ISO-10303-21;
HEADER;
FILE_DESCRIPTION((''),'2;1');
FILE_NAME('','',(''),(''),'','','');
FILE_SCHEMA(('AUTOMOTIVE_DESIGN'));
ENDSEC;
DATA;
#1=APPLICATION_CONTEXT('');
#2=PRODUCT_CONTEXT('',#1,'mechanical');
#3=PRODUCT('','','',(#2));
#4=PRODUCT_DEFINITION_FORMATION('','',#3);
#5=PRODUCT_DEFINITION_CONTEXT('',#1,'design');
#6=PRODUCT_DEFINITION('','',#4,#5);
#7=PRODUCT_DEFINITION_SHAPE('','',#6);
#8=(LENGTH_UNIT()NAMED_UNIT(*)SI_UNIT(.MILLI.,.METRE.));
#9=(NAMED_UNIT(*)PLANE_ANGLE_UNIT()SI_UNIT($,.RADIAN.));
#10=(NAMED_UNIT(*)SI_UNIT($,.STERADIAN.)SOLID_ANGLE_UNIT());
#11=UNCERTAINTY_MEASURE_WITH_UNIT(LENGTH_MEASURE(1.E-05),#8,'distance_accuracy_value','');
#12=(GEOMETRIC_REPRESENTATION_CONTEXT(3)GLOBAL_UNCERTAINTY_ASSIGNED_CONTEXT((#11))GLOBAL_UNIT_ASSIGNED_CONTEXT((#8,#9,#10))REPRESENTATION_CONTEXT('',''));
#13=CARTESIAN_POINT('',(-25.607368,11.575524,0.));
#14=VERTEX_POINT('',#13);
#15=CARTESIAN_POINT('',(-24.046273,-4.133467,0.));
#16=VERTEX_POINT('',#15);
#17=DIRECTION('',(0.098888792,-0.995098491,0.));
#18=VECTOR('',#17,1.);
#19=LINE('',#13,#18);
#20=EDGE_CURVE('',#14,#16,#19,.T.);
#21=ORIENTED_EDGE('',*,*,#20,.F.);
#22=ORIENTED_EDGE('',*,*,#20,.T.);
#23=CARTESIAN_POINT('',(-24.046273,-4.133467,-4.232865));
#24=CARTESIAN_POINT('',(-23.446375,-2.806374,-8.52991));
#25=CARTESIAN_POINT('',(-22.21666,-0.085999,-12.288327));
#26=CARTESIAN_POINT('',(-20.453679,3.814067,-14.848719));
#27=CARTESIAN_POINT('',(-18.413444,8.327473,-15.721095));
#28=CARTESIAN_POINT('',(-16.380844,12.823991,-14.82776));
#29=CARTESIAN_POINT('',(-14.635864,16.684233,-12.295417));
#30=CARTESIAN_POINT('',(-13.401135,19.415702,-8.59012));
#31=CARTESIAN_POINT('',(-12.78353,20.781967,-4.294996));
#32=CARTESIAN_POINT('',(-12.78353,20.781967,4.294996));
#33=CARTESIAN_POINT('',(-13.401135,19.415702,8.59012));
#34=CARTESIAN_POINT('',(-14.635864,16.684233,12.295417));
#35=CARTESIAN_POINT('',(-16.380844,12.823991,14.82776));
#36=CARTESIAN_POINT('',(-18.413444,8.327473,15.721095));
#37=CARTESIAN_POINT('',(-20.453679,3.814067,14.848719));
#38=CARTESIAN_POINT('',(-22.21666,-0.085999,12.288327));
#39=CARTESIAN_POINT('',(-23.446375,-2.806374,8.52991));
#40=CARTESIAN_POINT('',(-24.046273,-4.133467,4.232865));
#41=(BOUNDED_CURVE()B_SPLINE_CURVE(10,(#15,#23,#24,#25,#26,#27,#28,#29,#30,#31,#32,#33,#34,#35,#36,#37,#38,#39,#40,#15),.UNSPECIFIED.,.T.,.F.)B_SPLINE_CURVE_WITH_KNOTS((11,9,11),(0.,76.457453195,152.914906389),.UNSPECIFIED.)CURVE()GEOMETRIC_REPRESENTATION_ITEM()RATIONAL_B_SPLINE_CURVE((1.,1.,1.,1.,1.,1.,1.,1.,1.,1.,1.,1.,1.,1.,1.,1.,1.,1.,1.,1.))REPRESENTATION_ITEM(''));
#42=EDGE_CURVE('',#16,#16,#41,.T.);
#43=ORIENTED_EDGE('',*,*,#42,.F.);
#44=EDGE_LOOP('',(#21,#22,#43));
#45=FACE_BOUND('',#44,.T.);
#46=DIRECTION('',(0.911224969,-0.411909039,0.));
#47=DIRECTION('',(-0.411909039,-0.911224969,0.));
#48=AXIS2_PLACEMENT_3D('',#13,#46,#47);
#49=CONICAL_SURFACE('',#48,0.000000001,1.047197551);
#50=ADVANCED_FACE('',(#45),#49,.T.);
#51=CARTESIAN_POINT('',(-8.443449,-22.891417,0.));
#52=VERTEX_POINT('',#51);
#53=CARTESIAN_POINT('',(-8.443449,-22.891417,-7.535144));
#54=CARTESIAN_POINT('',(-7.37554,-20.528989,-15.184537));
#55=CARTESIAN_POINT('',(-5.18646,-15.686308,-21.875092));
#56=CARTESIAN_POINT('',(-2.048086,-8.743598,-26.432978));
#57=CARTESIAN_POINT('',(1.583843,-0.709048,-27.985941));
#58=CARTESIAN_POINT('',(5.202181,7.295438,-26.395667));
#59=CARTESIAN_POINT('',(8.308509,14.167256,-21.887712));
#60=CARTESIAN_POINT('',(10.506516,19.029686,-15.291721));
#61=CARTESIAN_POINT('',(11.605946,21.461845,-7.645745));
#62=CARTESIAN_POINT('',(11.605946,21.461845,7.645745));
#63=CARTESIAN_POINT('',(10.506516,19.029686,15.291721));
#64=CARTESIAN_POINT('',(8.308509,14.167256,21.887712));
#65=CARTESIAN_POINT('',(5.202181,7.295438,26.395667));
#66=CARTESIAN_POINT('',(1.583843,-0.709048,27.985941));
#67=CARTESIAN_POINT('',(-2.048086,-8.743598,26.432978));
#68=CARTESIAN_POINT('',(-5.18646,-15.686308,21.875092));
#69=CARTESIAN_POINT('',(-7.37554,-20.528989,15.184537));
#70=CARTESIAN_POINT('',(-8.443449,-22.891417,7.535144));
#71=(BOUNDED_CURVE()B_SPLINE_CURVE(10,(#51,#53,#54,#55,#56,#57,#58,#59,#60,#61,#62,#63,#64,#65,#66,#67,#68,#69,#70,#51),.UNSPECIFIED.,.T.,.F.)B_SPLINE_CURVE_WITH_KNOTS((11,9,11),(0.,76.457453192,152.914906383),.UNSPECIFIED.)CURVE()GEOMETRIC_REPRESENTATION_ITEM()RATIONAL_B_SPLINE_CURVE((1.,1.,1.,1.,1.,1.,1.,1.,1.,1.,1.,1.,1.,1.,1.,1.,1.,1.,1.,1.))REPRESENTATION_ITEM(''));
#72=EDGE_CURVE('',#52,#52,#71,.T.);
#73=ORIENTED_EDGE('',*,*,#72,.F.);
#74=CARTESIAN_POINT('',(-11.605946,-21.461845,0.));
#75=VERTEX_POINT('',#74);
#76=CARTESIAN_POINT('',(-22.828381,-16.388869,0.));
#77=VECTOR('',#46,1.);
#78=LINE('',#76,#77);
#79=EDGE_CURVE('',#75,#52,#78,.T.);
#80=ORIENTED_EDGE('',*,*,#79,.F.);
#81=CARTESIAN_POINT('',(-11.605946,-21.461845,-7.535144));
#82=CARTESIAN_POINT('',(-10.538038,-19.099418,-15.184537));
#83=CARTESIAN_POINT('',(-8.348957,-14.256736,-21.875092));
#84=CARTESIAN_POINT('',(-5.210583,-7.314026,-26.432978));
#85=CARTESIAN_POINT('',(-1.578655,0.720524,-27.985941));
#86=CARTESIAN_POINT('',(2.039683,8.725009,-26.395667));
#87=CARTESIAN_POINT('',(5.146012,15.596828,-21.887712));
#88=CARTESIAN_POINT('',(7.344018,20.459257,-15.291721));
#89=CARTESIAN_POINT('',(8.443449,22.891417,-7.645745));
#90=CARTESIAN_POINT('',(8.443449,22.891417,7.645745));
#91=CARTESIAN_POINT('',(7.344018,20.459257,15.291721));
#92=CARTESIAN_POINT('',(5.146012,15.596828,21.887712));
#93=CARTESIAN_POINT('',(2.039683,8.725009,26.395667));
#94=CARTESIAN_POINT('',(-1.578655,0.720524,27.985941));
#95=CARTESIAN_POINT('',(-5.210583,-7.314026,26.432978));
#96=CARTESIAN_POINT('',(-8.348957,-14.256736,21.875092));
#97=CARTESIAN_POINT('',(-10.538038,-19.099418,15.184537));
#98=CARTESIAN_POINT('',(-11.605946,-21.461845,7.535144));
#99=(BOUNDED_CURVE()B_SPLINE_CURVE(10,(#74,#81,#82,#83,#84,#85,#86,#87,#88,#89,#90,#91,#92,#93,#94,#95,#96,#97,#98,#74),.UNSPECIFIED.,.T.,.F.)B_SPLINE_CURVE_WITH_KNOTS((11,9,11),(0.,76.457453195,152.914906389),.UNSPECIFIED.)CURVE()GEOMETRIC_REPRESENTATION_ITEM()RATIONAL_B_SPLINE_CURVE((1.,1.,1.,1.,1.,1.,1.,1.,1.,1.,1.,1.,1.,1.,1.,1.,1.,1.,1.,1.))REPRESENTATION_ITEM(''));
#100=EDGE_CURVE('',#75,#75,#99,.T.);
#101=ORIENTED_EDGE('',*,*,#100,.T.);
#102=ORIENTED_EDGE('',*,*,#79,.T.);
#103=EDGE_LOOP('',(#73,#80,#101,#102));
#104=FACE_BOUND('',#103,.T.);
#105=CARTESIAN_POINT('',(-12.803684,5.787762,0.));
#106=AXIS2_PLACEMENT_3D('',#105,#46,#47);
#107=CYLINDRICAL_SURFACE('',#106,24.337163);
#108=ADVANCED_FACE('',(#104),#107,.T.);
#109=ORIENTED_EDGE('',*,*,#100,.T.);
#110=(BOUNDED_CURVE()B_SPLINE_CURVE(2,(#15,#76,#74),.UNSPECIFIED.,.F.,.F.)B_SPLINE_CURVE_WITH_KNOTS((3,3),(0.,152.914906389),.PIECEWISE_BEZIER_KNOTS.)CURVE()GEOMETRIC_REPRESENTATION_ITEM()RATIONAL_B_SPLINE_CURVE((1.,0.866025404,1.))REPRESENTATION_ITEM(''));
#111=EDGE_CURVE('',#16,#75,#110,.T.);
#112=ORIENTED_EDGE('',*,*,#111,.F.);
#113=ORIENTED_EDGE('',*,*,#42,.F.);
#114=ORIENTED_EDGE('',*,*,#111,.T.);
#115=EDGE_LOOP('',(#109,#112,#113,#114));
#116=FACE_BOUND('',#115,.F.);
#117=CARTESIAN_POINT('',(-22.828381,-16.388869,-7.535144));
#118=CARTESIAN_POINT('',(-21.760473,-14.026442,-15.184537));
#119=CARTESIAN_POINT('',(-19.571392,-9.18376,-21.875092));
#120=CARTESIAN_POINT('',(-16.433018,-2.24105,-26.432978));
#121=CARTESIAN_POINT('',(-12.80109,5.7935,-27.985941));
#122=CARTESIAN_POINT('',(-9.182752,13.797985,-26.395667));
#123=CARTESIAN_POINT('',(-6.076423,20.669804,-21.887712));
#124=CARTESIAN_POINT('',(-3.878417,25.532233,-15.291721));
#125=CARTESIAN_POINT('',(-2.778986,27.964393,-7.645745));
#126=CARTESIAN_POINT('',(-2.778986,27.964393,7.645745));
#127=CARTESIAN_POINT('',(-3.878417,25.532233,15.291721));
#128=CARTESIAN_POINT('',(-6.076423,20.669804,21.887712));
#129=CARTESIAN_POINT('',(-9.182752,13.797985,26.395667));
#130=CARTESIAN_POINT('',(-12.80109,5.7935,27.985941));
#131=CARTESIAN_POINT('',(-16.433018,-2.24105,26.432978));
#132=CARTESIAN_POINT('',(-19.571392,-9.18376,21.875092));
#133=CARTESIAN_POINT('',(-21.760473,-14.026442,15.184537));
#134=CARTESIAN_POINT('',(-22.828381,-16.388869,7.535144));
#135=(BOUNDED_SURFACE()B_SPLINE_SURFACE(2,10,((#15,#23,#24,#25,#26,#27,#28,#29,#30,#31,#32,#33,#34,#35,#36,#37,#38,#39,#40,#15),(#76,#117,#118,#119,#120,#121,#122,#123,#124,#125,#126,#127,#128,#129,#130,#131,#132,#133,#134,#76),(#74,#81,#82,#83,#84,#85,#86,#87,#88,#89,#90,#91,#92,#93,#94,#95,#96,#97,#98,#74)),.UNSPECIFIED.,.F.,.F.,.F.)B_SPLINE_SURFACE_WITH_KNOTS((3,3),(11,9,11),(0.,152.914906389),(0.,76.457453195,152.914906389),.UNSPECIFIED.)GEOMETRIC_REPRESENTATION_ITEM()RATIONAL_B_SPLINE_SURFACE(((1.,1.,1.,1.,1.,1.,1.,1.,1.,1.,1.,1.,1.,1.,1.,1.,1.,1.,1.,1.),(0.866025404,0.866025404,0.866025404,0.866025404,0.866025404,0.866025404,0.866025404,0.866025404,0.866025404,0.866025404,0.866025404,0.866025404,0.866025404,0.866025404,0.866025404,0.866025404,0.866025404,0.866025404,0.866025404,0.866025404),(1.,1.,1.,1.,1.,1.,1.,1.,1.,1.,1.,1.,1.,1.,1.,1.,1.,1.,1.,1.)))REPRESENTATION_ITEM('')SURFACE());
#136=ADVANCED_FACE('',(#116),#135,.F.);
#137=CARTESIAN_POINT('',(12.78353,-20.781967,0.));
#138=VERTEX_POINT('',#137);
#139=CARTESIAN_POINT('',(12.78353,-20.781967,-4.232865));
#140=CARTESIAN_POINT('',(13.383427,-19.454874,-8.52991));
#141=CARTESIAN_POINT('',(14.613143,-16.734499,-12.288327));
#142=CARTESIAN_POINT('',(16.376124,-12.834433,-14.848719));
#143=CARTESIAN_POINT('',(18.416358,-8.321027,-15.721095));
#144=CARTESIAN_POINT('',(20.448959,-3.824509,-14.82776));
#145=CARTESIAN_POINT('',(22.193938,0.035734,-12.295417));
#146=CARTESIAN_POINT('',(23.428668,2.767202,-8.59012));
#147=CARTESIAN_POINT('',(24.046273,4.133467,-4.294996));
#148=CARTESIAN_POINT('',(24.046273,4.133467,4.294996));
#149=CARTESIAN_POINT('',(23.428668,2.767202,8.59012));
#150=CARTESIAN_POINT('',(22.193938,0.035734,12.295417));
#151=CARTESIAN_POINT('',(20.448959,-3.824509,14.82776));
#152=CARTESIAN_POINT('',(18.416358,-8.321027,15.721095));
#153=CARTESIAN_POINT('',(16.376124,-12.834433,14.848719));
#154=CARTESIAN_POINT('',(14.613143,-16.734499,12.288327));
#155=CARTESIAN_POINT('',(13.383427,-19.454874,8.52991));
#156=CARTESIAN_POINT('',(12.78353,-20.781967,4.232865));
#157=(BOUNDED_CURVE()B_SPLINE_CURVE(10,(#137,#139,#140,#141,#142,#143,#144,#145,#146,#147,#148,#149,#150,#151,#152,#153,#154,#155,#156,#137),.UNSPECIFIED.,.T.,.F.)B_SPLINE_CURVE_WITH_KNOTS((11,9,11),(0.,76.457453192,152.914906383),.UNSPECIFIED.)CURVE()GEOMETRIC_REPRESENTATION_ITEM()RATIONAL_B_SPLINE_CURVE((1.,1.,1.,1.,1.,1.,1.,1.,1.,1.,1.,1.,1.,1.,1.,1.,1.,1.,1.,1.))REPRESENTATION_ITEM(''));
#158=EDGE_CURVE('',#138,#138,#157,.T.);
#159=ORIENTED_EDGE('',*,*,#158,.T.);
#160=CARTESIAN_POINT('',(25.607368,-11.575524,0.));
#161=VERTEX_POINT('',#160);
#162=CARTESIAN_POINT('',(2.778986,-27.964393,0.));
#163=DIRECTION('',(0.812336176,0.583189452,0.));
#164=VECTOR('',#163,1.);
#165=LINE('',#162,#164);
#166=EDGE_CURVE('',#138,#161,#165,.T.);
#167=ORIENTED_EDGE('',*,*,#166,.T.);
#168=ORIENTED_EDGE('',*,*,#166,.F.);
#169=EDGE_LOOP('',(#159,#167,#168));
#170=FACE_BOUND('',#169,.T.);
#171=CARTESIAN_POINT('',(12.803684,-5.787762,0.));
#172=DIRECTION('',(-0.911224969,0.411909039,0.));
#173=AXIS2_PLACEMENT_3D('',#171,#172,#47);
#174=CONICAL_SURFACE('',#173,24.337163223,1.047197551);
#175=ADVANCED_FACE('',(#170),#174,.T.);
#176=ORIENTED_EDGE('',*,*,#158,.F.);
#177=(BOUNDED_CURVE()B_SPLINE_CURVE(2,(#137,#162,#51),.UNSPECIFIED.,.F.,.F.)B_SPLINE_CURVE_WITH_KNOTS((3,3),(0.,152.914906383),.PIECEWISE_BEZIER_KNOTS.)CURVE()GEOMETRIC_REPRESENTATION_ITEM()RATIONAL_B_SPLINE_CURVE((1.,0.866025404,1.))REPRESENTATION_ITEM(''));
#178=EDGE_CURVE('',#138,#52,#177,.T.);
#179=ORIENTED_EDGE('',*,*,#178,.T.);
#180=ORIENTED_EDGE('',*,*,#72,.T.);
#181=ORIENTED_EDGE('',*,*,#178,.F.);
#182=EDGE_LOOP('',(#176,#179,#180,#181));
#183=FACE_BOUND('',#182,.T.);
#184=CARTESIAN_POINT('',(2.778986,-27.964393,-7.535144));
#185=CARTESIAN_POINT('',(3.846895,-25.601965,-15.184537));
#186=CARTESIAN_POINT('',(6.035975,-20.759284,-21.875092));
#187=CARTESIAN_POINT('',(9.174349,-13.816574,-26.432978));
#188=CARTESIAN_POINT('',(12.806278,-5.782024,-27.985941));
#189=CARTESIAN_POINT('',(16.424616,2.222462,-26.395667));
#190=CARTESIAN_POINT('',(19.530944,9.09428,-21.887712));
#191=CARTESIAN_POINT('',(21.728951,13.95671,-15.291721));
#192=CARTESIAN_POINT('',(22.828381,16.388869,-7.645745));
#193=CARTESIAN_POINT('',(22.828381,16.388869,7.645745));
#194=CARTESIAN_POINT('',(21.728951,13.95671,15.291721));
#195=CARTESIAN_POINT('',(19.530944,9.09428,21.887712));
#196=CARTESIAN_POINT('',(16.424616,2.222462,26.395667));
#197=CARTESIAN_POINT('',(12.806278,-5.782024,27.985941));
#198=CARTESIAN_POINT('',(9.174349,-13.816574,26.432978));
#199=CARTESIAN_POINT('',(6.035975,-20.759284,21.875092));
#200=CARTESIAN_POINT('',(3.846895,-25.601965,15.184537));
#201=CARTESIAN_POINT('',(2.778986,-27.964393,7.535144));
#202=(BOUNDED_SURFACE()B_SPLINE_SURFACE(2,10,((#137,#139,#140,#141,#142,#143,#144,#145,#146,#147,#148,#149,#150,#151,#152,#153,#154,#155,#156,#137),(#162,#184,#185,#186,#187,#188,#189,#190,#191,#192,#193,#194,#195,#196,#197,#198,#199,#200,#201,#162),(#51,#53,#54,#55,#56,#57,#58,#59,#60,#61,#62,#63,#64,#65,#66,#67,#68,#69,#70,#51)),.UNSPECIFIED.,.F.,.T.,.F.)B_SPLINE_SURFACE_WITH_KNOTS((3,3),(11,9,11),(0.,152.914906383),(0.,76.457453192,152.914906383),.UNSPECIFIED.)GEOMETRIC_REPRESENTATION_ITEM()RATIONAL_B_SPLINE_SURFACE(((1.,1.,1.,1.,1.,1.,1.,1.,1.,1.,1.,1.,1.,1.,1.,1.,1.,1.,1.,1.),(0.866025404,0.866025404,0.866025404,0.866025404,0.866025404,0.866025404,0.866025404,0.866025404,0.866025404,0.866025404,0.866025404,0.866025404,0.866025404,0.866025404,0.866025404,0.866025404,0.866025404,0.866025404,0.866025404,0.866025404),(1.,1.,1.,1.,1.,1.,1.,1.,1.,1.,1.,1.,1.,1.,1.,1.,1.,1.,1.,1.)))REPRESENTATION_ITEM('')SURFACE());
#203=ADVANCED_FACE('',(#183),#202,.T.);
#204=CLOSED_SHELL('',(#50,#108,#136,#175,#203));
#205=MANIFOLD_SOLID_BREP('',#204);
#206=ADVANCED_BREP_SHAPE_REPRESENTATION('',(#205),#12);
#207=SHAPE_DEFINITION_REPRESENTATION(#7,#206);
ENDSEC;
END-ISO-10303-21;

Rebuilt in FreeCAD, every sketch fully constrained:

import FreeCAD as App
import Part
import Sketcher

V = App.Vector


def edges_at(feature, points):
    """Names of the edges that pass closest to the given points."""
    edges = feature.Shape.Edges
    near = lambda p: min(range(len(edges)), key=lambda i: edges[i].distToShape(Part.Vertex(*p))[0])
    return sorted({f"Edge{near(p) + 1}" for p in points})

doc = App.newDocument("Part")
body = doc.addObject("PartDesign::Body", "Body")

sketch1 = body.newObject("Sketcher::SketchObject", "Sketch")
sketch1.AttachmentSupport = (doc.getObject("XY_Plane"), [""])
sketch1.MapMode = "FlatFace"
sketch1.addGeometry([
    Part.LineSegment(V(3, -28, 0), V(26, -12, 0)),
    Part.LineSegment(V(26, -12, 0), V(-26, 12, 0)),
    Part.LineSegment(V(-26, 12, 0), V(-23, -16, 0)),
    Part.LineSegment(V(-23, -16, 0), V(3, -28, 0)),
], False)
sketch1.addGeometry(Part.LineSegment(V(-26, 12, 0), V(26, -12, 0)), True)
sketch1.addConstraint([
    Sketcher.Constraint("Coincident", 0, 2, 1, 1),
    Sketcher.Constraint("Coincident", 1, 2, 2, 1),
    Sketcher.Constraint("Coincident", 2, 2, 3, 1),
    Sketcher.Constraint("Coincident", 3, 2, 0, 1),
    Sketcher.Constraint("Coincident", 4, 1, 1, 2),
    Sketcher.Constraint("Coincident", 4, 2, 0, 2),
    Sketcher.Constraint("Symmetric", 0, 2, 1, 2, -1, 1),
    Sketcher.Constraint("Parallel", 1, 3),
    Sketcher.Constraint("Equal", 0, 2),
    Sketcher.Constraint("Equal", 2, 3),
    Sketcher.Constraint("Distance", 1, 56.204271),
    Sketcher.Constraint("DistanceX", 2, 2, -1, 1, 22.828381),
    Sketcher.Constraint("DistanceY", 2, 2, -1, 1, 16.388869),
])
revolution = body.newObject("PartDesign::Revolution", "Revolution")
revolution.Profile = sketch1
revolution.ReferenceAxis = (sketch1, ["Axis0"])
revolution.Angle = 360
doc.recompute()

fillet = body.newObject("PartDesign::Fillet", "Fillet")
fillet.Base = (revolution, edges_at(revolution, [(22.828, 16.389, 0), (-2.779, 27.964, 0)]))
fillet.Radius = 21.331535

doc.recompute()
